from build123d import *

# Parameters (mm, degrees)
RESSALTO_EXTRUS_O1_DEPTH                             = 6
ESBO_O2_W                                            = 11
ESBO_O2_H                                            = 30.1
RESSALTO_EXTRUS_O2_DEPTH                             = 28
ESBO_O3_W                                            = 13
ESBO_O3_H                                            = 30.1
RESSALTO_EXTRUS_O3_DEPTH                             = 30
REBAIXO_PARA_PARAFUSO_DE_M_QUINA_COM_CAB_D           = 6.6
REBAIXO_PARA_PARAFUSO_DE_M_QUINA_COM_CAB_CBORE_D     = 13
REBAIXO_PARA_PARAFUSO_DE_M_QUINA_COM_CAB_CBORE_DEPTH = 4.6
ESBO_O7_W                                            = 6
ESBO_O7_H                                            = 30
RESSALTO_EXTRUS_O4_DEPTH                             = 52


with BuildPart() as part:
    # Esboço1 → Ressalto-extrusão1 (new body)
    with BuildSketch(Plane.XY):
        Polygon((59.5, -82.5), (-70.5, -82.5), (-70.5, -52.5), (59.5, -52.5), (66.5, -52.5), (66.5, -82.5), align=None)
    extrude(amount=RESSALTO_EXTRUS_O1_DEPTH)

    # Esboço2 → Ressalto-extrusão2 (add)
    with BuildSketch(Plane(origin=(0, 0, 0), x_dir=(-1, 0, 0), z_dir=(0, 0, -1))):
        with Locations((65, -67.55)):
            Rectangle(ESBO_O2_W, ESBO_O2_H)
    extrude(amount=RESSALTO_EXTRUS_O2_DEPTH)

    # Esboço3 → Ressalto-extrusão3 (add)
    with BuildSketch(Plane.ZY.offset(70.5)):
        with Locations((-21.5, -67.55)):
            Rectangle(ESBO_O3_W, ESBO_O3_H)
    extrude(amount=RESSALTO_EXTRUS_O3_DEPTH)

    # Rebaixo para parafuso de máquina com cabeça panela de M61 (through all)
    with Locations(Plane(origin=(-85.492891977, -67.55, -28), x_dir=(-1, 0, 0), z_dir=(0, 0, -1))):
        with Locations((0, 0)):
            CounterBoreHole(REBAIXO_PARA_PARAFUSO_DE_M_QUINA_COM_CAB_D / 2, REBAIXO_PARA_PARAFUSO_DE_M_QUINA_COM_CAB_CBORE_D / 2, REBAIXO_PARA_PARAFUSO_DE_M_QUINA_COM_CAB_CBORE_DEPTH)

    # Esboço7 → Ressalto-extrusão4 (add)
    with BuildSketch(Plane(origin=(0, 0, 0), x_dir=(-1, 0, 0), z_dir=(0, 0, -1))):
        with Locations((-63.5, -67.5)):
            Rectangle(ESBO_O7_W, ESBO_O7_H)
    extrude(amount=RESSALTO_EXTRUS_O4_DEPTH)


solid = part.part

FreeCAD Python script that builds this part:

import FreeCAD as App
import Part
import Sketcher
Q = App.Units.Quantity

doc = App.newDocument("Part")
body = doc.addObject("PartDesign::Body", "Body")

sketch1 = body.newObject("Sketcher::SketchObject", "Sketch")
sketch1.AttachmentSupport = (doc.getObject("XY_Plane"), [""])
sketch1.MapMode = "FlatFace"
sketch1.addGeometry(Part.LineSegment(App.Vector(-70, -82, 0), App.Vector(66, -82, 0)), False)
sketch1.addGeometry(Part.LineSegment(App.Vector(66, -82, 0), App.Vector(66, -52, 0)), False)
sketch1.addGeometry(Part.LineSegment(App.Vector(66, -52, 0), App.Vector(-70, -52, 0)), False)
sketch1.addGeometry(Part.LineSegment(App.Vector(-70, -52, 0), App.Vector(-70, -82, 0)), False)
sketch1.addConstraint(Sketcher.Constraint("Coincident", 0, 2, 1, 1))
sketch1.addConstraint(Sketcher.Constraint("Coincident", 1, 2, 2, 1))
sketch1.addConstraint(Sketcher.Constraint("Coincident", 2, 2, 3, 1))
sketch1.addConstraint(Sketcher.Constraint("Coincident", 3, 2, 0, 1))
sketch1.addConstraint(Sketcher.Constraint("Horizontal", 0))
sketch1.addConstraint(Sketcher.Constraint("Vertical", 1))
sketch1.addConstraint(Sketcher.Constraint("Horizontal", 2))
sketch1.addConstraint(Sketcher.Constraint("Vertical", 3))
sketch1.addConstraint(Sketcher.Constraint("DistanceX", 0, 1, 0, 2, Q("137 mm")))
sketch1.addConstraint(Sketcher.Constraint("DistanceY", 1, 1, 1, 2, Q("30 mm")))
sketch1.addConstraint(Sketcher.Constraint("DistanceX", -1, 1, 0, 2, Q("66.5 mm")))
sketch1.addConstraint(Sketcher.Constraint("DistanceY", 0, 2, -1, 1, Q("82.5 mm")))
pad1 = body.newObject("PartDesign::Pad", "Pad")
pad1.Profile = sketch1
pad1.Length = 6

sketch2 = body.newObject("Sketcher::SketchObject", "Sketch001")
sketch2.AttachmentSupport = (doc.getObject("XY_Plane"), [""])
sketch2.MapMode = "FlatFace"
sketch2.addGeometry(Part.LineSegment(App.Vector(-60, -52, 0), App.Vector(-60, -83, 0)), False)
sketch2.addGeometry(Part.LineSegment(App.Vector(-60, -83, 0), App.Vector(-70, -83, 0)), False)
sketch2.addGeometry(Part.LineSegment(App.Vector(-70, -83, 0), App.Vector(-70, -52, 0)), False)
sketch2.addGeometry(Part.LineSegment(App.Vector(-70, -52, 0), App.Vector(-60, -52, 0)), False)
sketch2.addConstraint(Sketcher.Constraint("Coincident", 0, 2, 1, 1))
sketch2.addConstraint(Sketcher.Constraint("Coincident", 1, 2, 2, 1))
sketch2.addConstraint(Sketcher.Constraint("Coincident", 2, 2, 3, 1))
sketch2.addConstraint(Sketcher.Constraint("Coincident", 3, 2, 0, 1))
sketch2.addConstraint(Sketcher.Constraint("Vertical", 0))
sketch2.addConstraint(Sketcher.Constraint("Horizontal", 1))
sketch2.addConstraint(Sketcher.Constraint("Vertical", 2))
sketch2.addConstraint(Sketcher.Constraint("Horizontal", 3))
sketch2.addConstraint(Sketcher.Constraint("DistanceX", 1, 2, 1, 1, Q("11 mm")))
sketch2.addConstraint(Sketcher.Constraint("DistanceY", 0, 2, 0, 1, Q("30.1 mm")))
sketch2.addConstraint(Sketcher.Constraint("DistanceX", 0, 2, -1, 1, Q("59.5 mm")))
sketch2.addConstraint(Sketcher.Constraint("DistanceY", 0, 2, -1, 1, Q("82.6 mm")))
pad2 = body.newObject("PartDesign::Pad", "Pad001")
pad2.Profile = sketch2
pad2.Length = 28
pad2.Reversed = True

sketch3 = body.newObject("Sketcher::SketchObject", "Sketch002")
sketch3.AttachmentSupport = (doc.getObject("YZ_Plane"), [""])
sketch3.MapMode = "FlatFace"
sketch3.AttachmentOffset = App.Placement(App.Vector(0, 0, -70.5), App.Rotation())
sketch3.addGeometry(Part.LineSegment(App.Vector(-52, -28, 0), App.Vector(-83, -28, 0)), False)
sketch3.addGeometry(Part.LineSegment(App.Vector(-83, -28, 0), App.Vector(-83, -15, 0)), False)
sketch3.addGeometry(Part.LineSegment(App.Vector(-83, -15, 0), App.Vector(-52, -15, 0)), False)
sketch3.addGeometry(Part.LineSegment(App.Vector(-52, -15, 0), App.Vector(-52, -28, 0)), False)
sketch3.addConstraint(Sketcher.Constraint("Coincident", 0, 2, 1, 1))
sketch3.addConstraint(Sketcher.Constraint("Coincident", 1, 2, 2, 1))
sketch3.addConstraint(Sketcher.Constraint("Coincident", 2, 2, 3, 1))
sketch3.addConstraint(Sketcher.Constraint("Coincident", 3, 2, 0, 1))
sketch3.addConstraint(Sketcher.Constraint("Horizontal", 0))
sketch3.addConstraint(Sketcher.Constraint("Vertical", 1))
sketch3.addConstraint(Sketcher.Constraint("Horizontal", 2))
sketch3.addConstraint(Sketcher.Constraint("Vertical", 3))
sketch3.addConstraint(Sketcher.Constraint("DistanceY", 1, 1, 1, 2, Q("13 mm")))
sketch3.addConstraint(Sketcher.Constraint("DistanceX", 0, 2, 0, 1, Q("30.1 mm")))
sketch3.addConstraint(Sketcher.Constraint("DistanceY", 0, 2, -1, 1, Q("28 mm")))
sketch3.addConstraint(Sketcher.Constraint("DistanceX", 0, 2, -1, 1, Q("82.6 mm")))
pad3 = body.newObject("PartDesign::Pad", "Pad002")
pad3.Profile = sketch3
pad3.Length = 30
pad3.Reversed = True

sketch4 = body.newObject("Sketcher::SketchObject", "Sketch003")
sketch4.AttachmentSupport = (doc.getObject("XY_Plane"), [""])
sketch4.MapMode = "FlatFace"
sketch4.AttachmentOffset = App.Placement(App.Vector(0, 0, -28), App.Rotation())
sketch4.addGeometry(Part.Circle(App.Vector(-85.5, -67.5, 0), App.Vector(0, 0, 1), 3.3), False)
sketch4.addConstraint(Sketcher.Constraint("Diameter", 0, Q("6.6 mm")))
sketch4.addConstraint(Sketcher.Constraint("DistanceY", 0, 3, -1, 1, Q("67.55 mm")))
sketch4.addConstraint(Sketcher.Constraint("DistanceX", 0, 3, -1, 1, Q("85.492892 mm")))
doc.recompute()
hole = body.newObject("PartDesign::Hole", "Hole")
hole.Profile = sketch4
hole.ThreadType = "None"
hole.Diameter = 6.6
hole.DepthType = "ThroughAll"
hole.HoleCutType = "Counterbore"
hole.HoleCutDiameter = 13
hole.HoleCutDepth = 4.6
hole.Reversed = True

sketch5 = body.newObject("Sketcher::SketchObject", "Sketch004")
sketch5.AttachmentSupport = (doc.getObject("XY_Plane"), [""])
sketch5.MapMode = "FlatFace"
sketch5.addGeometry(Part.LineSegment(App.Vector(66, -52, 0), App.Vector(66, -82, 0)), False)
sketch5.addGeometry(Part.LineSegment(App.Vector(66, -82, 0), App.Vector(60, -82, 0)), False)
sketch5.addGeometry(Part.LineSegment(App.Vector(60, -82, 0), App.Vector(60, -52, 0)), False)
sketch5.addGeometry(Part.LineSegment(App.Vector(60, -52, 0), App.Vector(66, -52, 0)), False)
sketch5.addConstraint(Sketcher.Constraint("Coincident", 0, 2, 1, 1))
sketch5.addConstraint(Sketcher.Constraint("Coincident", 1, 2, 2, 1))
sketch5.addConstraint(Sketcher.Constraint("Coincident", 2, 2, 3, 1))
sketch5.addConstraint(Sketcher.Constraint("Coincident", 3, 2, 0, 1))
sketch5.addConstraint(Sketcher.Constraint("Vertical", 0))
sketch5.addConstraint(Sketcher.Constraint("Horizontal", 1))
sketch5.addConstraint(Sketcher.Constraint("Vertical", 2))
sketch5.addConstraint(Sketcher.Constraint("Horizontal", 3))
sketch5.addConstraint(Sketcher.Constraint("DistanceX", 1, 2, 1, 1, Q("6 mm")))
sketch5.addConstraint(Sketcher.Constraint("DistanceY", 0, 2, 0, 1, Q("30 mm")))
sketch5.addConstraint(Sketcher.Constraint("DistanceX", -1, 1, 0, 2, Q("66.5 mm")))
sketch5.addConstraint(Sketcher.Constraint("DistanceY", 0, 2, -1, 1, Q("82.5 mm")))
pad4 = body.newObject("PartDesign::Pad", "Pad003")
pad4.Profile = sketch5
pad4.Length = 52
pad4.Reversed = True

doc.recompute()
